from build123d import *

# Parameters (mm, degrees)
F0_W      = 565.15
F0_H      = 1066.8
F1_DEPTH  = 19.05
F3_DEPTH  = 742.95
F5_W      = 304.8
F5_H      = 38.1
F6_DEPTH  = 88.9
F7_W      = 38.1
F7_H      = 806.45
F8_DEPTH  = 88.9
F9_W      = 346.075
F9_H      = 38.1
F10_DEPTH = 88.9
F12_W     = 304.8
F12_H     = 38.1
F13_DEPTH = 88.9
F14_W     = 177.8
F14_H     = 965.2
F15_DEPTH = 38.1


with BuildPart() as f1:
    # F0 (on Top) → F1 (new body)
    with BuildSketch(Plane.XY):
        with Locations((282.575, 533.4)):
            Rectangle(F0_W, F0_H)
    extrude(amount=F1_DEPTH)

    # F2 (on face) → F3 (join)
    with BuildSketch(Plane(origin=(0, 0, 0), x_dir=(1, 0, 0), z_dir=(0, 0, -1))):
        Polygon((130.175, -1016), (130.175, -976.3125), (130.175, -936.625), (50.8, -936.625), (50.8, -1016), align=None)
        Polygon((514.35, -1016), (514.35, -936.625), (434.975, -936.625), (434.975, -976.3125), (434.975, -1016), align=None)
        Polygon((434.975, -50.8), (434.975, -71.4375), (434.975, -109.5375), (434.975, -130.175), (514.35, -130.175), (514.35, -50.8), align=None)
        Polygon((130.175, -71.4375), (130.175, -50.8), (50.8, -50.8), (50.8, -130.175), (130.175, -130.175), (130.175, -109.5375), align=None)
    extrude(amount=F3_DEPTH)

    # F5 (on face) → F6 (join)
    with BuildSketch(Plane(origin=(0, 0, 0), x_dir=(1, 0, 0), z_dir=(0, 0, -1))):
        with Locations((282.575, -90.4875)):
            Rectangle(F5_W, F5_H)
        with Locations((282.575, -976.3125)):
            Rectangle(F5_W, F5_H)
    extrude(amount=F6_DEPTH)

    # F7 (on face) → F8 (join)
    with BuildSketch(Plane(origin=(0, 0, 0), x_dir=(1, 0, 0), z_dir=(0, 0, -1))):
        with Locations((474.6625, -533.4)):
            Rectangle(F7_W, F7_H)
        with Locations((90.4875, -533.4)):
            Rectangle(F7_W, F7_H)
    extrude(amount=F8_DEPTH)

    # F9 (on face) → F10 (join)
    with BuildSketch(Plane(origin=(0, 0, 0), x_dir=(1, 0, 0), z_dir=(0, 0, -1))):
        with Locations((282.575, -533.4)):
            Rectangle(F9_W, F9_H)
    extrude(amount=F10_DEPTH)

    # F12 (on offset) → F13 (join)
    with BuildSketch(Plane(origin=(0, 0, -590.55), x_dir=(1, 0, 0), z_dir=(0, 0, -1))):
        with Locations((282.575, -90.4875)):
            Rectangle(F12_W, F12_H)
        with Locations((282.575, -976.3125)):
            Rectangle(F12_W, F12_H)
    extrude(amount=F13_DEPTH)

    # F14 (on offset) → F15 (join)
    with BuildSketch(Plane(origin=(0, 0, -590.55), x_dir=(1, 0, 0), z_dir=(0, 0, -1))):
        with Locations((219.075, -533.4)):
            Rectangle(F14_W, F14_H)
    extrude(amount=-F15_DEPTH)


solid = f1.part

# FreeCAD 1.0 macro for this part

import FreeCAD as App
import Part
import Sketcher

V = App.Vector
Q = App.Units.Quantity

doc = App.newDocument("Part")
params = doc.addObject("Spreadsheet::Sheet", "Params")
for row, (alias, value) in enumerate([
    ("sketch1_height", "42 in"),
    ("sketch1_width", "22.25 in"),
    ("pad1_length", "0.75 in"),
    ("sketch2_width", "3.125 in"),
    ("pad2_length", "29.25 in"),
    ("sketch3_width", "12 in"),
    ("sketch3_height", "1.5 in"),
    ("pad3_length", "3.5 in"),
    ("sketch4_width", "1.5 in"),
    ("sketch4_height", "31.75 in"),
    ("pad4_length", "3.5 in"),
    ("sketch5_height", "1.5 in"),
    ("sketch5_width", "13.625 in"),
    ("pad5_length", "3.5 in"),
    ("sketch6_width", "12 in"),
    ("sketch6_height", "1.5 in"),
    ("pad6_length", "3.5 in"),
    ("sketch7_width", "7 in"),
    ("sketch7_height", "38 in"),
    ("pad7_length", "1.5 in"),
], start=1):
    params.set(f"A{row}", alias)
    params.set(f"B{row}", "=" + value)
    params.setAlias(f"B{row}", alias)

body = doc.addObject("PartDesign::Body", "Body")

sketch1 = doc.addObject("Sketcher::SketchObject", "Sketch")
body.addObject(sketch1)
sketch1.AttachmentSupport = (doc.XY_Plane, [""])
sketch1.MapMode = "FlatFace"
sketch1.addGeometry([
    Part.LineSegment(V(0, 1066.8, 0), V(0, 0, 0)),
    Part.LineSegment(V(0, 0, 0), V(565.15, 0, 0)),
    Part.LineSegment(V(565.15, 0, 0), V(565.15, 1066.8, 0)),
    Part.LineSegment(V(565.15, 1066.8, 0), V(0, 1066.8, 0)),
], False)
sketch1.addConstraint([
    Sketcher.Constraint("Coincident", 0, 2, 1, 1),
    Sketcher.Constraint("Coincident", 1, 2, 2, 1),
    Sketcher.Constraint("Coincident", 2, 2, 3, 1),
    Sketcher.Constraint("Coincident", 3, 2, 0, 1),
    Sketcher.Constraint("Vertical", 0),
    Sketcher.Constraint("Horizontal", 1),
    Sketcher.Constraint("Vertical", 2),
    Sketcher.Constraint("Horizontal", 3),
    Sketcher.Constraint("Coincident", 0, 2, -1, 1),
    Sketcher.Constraint("DistanceY", 0, 2, 0, 1, Q("42 in")),
    Sketcher.Constraint("DistanceX", 1, 1, 1, 2, Q("22.25 in")),
])
sketch1.setExpression("Constraints[9]", "Params.sketch1_height")
sketch1.setExpression("Constraints[10]", "Params.sketch1_width")
pad1 = doc.addObject("PartDesign::Pad", "Pad")
body.addObject(pad1)
pad1.Profile = sketch1
pad1.setExpression("Length", "Params.pad1_length")

sketch2 = doc.addObject("Sketcher::SketchObject", "Sketch001")
body.addObject(sketch2)
sketch2.AttachmentSupport = (doc.XY_Plane, [""])
sketch2.MapMode = "FlatFace"
sketch2.addGeometry([
    Part.LineSegment(V(130.175, 1016, 0), V(130.175, 936.625, 0)),
    Part.LineSegment(V(130.175, 936.625, 0), V(50.8, 936.625, 0)),
    Part.LineSegment(V(50.8, 936.625, 0), V(50.8, 1016, 0)),
    Part.LineSegment(V(50.8, 1016, 0), V(130.175, 1016, 0)),
    Part.LineSegment(V(514.35, 1016, 0), V(514.35, 936.625, 0)),
    Part.LineSegment(V(514.35, 936.625, 0), V(434.975, 936.625, 0)),
    Part.LineSegment(V(434.975, 936.625, 0), V(434.975, 1016, 0)),
    Part.LineSegment(V(434.975, 1016, 0), V(514.35, 1016, 0)),
    Part.LineSegment(V(434.975, 50.8, 0), V(434.975, 130.175, 0)),
    Part.LineSegment(V(434.975, 130.175, 0), V(514.35, 130.175, 0)),
    Part.LineSegment(V(514.35, 130.175, 0), V(514.35, 50.8, 0)),
    Part.LineSegment(V(514.35, 50.8, 0), V(434.975, 50.8, 0)),
    Part.LineSegment(V(130.175, 50.8, 0), V(50.8, 50.8, 0)),
    Part.LineSegment(V(50.8, 50.8, 0), V(50.8, 130.175, 0)),
    Part.LineSegment(V(50.8, 130.175, 0), V(130.175, 130.175, 0)),
    Part.LineSegment(V(130.175, 130.175, 0), V(130.175, 50.8, 0)),
], False)
sketch2.addConstraint([
    Sketcher.Constraint("Coincident", 0, 2, 1, 1),
    Sketcher.Constraint("Coincident", 1, 2, 2, 1),
    Sketcher.Constraint("Coincident", 2, 2, 3, 1),
    Sketcher.Constraint("Coincident", 3, 2, 0, 1),
    Sketcher.Constraint("Coincident", 4, 2, 5, 1),
    Sketcher.Constraint("Coincident", 5, 2, 6, 1),
    Sketcher.Constraint("Coincident", 6, 2, 7, 1),
    Sketcher.Constraint("Coincident", 7, 2, 4, 1),
    Sketcher.Constraint("Coincident", 8, 2, 9, 1),
    Sketcher.Constraint("Coincident", 9, 2, 10, 1),
    Sketcher.Constraint("Coincident", 10, 2, 11, 1),
    Sketcher.Constraint("Coincident", 11, 2, 8, 1),
    Sketcher.Constraint("Coincident", 12, 2, 13, 1),
    Sketcher.Constraint("Coincident", 13, 2, 14, 1),
    Sketcher.Constraint("Coincident", 14, 2, 15, 1),
    Sketcher.Constraint("Coincident", 15, 2, 12, 1),
    Sketcher.Constraint("Vertical", 0),
    Sketcher.Constraint("Horizontal", 1),
    Sketcher.Constraint("Vertical", 2),
    Sketcher.Constraint("Horizontal", 3),
    Sketcher.Constraint("Vertical", 4),
    Sketcher.Constraint("Horizontal", 5),
    Sketcher.Constraint("Vertical", 6),
    Sketcher.Constraint("Horizontal", 7),
    Sketcher.Constraint("Vertical", 8),
    Sketcher.Constraint("Horizontal", 9),
    Sketcher.Constraint("Vertical", 10),
    Sketcher.Constraint("Horizontal", 11),
    Sketcher.Constraint("Horizontal", 12),
    Sketcher.Constraint("Vertical", 13),
    Sketcher.Constraint("Horizontal", 14),
    Sketcher.Constraint("Vertical", 15),
    Sketcher.Constraint("Horizontal", 1, 2, 4, 2),
    Sketcher.Constraint("Horizontal", 3, 2, 6, 2),
    Sketcher.Constraint("Horizontal", 11, 2, 12, 2),
    Sketcher.Constraint("Horizontal", 9, 2, 13, 2),
    Sketcher.Constraint("Vertical", 6, 2, 8, 2),
    Sketcher.Constraint("Vertical", 7, 2, 9, 2),
    Sketcher.Constraint("Vertical", 2, 2, 12, 2),
    Sketcher.Constraint("Vertical", 3, 2, 14, 2),
    Sketcher.Constraint("Equal", 3, 5),
    Sketcher.Constraint("Equal", 14, 0),
    Sketcher.Constraint("Equal", 6, 8),
    Sketcher.Constraint("DistanceX", -1, 1, 1, 2, Q("2 in")),
    Sketcher.Constraint("DistanceY", -1, 1, 2, 2, Q("40 in")),
    Sketcher.Constraint("DistanceY", -1, 1, 10, 2, Q("2 in")),
    Sketcher.Constraint("DistanceX", 0, 2, 5, 2, Q("12 in")),
    Sketcher.Constraint("DistanceX", 1, 2, 1, 1, Q("3.125 in")),
])
sketch2.setExpression("Constraints[47]", "Params.sketch2_width")
pad2 = doc.addObject("PartDesign::Pad", "Pad001")
body.addObject(pad2)
pad2.Profile = sketch2
pad2.setExpression("Length", "Params.pad2_length")
pad2.Reversed = True

sketch3 = doc.addObject("Sketcher::SketchObject", "Sketch002")
body.addObject(sketch3)
sketch3.AttachmentSupport = (doc.XY_Plane, [""])
sketch3.MapMode = "FlatFace"
sketch3.addGeometry([
    Part.LineSegment(V(130.175, 71.4375, 0), V(130.175, 109.5375, 0)),
    Part.LineSegment(V(130.175, 109.5375, 0), V(434.975, 109.5375, 0)),
    Part.LineSegment(V(434.975, 109.5375, 0), V(434.975, 71.4375, 0)),
    Part.LineSegment(V(434.975, 71.4375, 0), V(130.175, 71.4375, 0)),
    Part.LineSegment(V(130.175, 957.2625, 0), V(130.175, 995.3625, 0)),
    Part.LineSegment(V(130.175, 995.3625, 0), V(434.975, 995.3625, 0)),
    Part.LineSegment(V(434.975, 995.3625, 0), V(434.975, 957.2625, 0)),
    Part.LineSegment(V(434.975, 957.2625, 0), V(130.175, 957.2625, 0)),
], False)
sketch3.addConstraint([
    Sketcher.Constraint("Coincident", 0, 2, 1, 1),
    Sketcher.Constraint("Coincident", 1, 2, 2, 1),
    Sketcher.Constraint("Coincident", 2, 2, 3, 1),
    Sketcher.Constraint("Coincident", 3, 2, 0, 1),
    Sketcher.Constraint("Coincident", 4, 2, 5, 1),
    Sketcher.Constraint("Coincident", 5, 2, 6, 1),
    Sketcher.Constraint("Coincident", 6, 2, 7, 1),
    Sketcher.Constraint("Coincident", 7, 2, 4, 1),
    Sketcher.Constraint("Vertical", 0),
    Sketcher.Constraint("Horizontal", 1),
    Sketcher.Constraint("Vertical", 2),
    Sketcher.Constraint("Horizontal", 3),
    Sketcher.Constraint("Vertical", 4),
    Sketcher.Constraint("Horizontal", 5),
    Sketcher.Constraint("Vertical", 6),
    Sketcher.Constraint("Horizontal", 7),
    Sketcher.Constraint("Vertical", 3, 2, 4, 2),
    Sketcher.Constraint("Vertical", 2, 2, 5, 2),
    Sketcher.Constraint("Equal", 2, 4),
    Sketcher.Constraint("DistanceX", 1, 1, 1, 2, Q("12 in")),
    Sketcher.Constraint("DistanceY", 0, 1, 0, 2, Q("1.5 in")),
    Sketcher.Constraint("DistanceX", -1, 1, 0, 2, Q("5.125 in")),
    Sketcher.Constraint("DistanceY", -1, 1, 0, 2, Q("4.3125 in")),
    Sketcher.Constraint("DistanceY", -1, 1, 4, 2, Q("39.1875 in")),
])
sketch3.setExpression("Constraints[19]", "Params.sketch3_width")
sketch3.setExpression("Constraints[20]", "Params.sketch3_height")
pad3 = doc.addObject("PartDesign::Pad", "Pad002")
body.addObject(pad3)
pad3.Profile = sketch3
pad3.setExpression("Length", "Params.pad3_length")
pad3.Reversed = True

sketch4 = doc.addObject("Sketcher::SketchObject", "Sketch003")
body.addObject(sketch4)
sketch4.AttachmentSupport = (doc.XY_Plane, [""])
sketch4.MapMode = "FlatFace"
sketch4.addGeometry([
    Part.LineSegment(V(455.6125, 130.175, 0), V(455.6125, 936.625, 0)),
    Part.LineSegment(V(455.6125, 936.625, 0), V(493.7125, 936.625, 0)),
    Part.LineSegment(V(493.7125, 936.625, 0), V(493.7125, 130.175, 0)),
    Part.LineSegment(V(493.7125, 130.175, 0), V(455.6125, 130.175, 0)),
    Part.LineSegment(V(71.4375, 130.175, 0), V(71.4375, 936.625, 0)),
    Part.LineSegment(V(71.4375, 936.625, 0), V(109.5375, 936.625, 0)),
    Part.LineSegment(V(109.5375, 936.625, 0), V(109.5375, 130.175, 0)),
    Part.LineSegment(V(109.5375, 130.175, 0), V(71.4375, 130.175, 0)),
], False)
sketch4.addConstraint([
    Sketcher.Constraint("Coincident", 0, 2, 1, 1),
    Sketcher.Constraint("Coincident", 1, 2, 2, 1),
    Sketcher.Constraint("Coincident", 2, 2, 3, 1),
    Sketcher.Constraint("Coincident", 3, 2, 0, 1),
    Sketcher.Constraint("Coincident", 4, 2, 5, 1),
    Sketcher.Constraint("Coincident", 5, 2, 6, 1),
    Sketcher.Constraint("Coincident", 6, 2, 7, 1),
    Sketcher.Constraint("Coincident", 7, 2, 4, 1),
    Sketcher.Constraint("Vertical", 0),
    Sketcher.Constraint("Horizontal", 1),
    Sketcher.Constraint("Vertical", 2),
    Sketcher.Constraint("Horizontal", 3),
    Sketcher.Constraint("Vertical", 4),
    Sketcher.Constraint("Horizontal", 5),
    Sketcher.Constraint("Vertical", 6),
    Sketcher.Constraint("Horizontal", 7),
    Sketcher.Constraint("Horizontal", 1, 2, 4, 2),
    Sketcher.Constraint("Horizontal", 3, 2, 6, 2),
    Sketcher.Constraint("Equal", 3, 5),
    Sketcher.Constraint("DistanceX", 1, 1, 1, 2, Q("1.5 in")),
    Sketcher.Constraint("DistanceY", 0, 1, 0, 2, Q("31.75 in")),
    Sketcher.Constraint("DistanceX", -1, 1, 0, 2, Q("17.9375 in")),
    Sketcher.Constraint("DistanceY", -1, 1, 0, 2, Q("36.875 in")),
    Sketcher.Constraint("DistanceX", -1, 1, 4, 2, Q("2.8125 in")),
])
sketch4.setExpression("Constraints[19]", "Params.sketch4_width")
sketch4.setExpression("Constraints[20]", "Params.sketch4_height")
pad4 = doc.addObject("PartDesign::Pad", "Pad003")
body.addObject(pad4)
pad4.Profile = sketch4
pad4.setExpression("Length", "Params.pad4_length")
pad4.Reversed = True

sketch5 = doc.addObject("Sketcher::SketchObject", "Sketch004")
body.addObject(sketch5)
sketch5.AttachmentSupport = (doc.XY_Plane, [""])
sketch5.MapMode = "FlatFace"
sketch5.addGeometry([
    Part.LineSegment(V(109.5375, 514.35, 0), V(109.5375, 552.45, 0)),
    Part.LineSegment(V(109.5375, 552.45, 0), V(455.6125, 552.45, 0)),
    Part.LineSegment(V(455.6125, 552.45, 0), V(455.6125, 514.35, 0)),
    Part.LineSegment(V(455.6125, 514.35, 0), V(109.5375, 514.35, 0)),
], False)
sketch5.addConstraint([
    Sketcher.Constraint("Coincident", 0, 2, 1, 1),
    Sketcher.Constraint("Coincident", 1, 2, 2, 1),
    Sketcher.Constraint("Coincident", 2, 2, 3, 1),
    Sketcher.Constraint("Coincident", 3, 2, 0, 1),
    Sketcher.Constraint("Vertical", 0),
    Sketcher.Constraint("Horizontal", 1),
    Sketcher.Constraint("Vertical", 2),
    Sketcher.Constraint("Horizontal", 3),
    Sketcher.Constraint("DistanceY", 0, 1, 0, 2, Q("1.5 in")),
    Sketcher.Constraint("DistanceX", 1, 1, 1, 2, Q("13.625 in")),
    Sketcher.Constraint("DistanceY", -1, 1, 0, 2, Q("21.75 in")),
    Sketcher.Constraint("DistanceX", -1, 1, 0, 2, Q("4.3125 in")),
])
sketch5.setExpression("Constraints[8]", "Params.sketch5_height")
sketch5.setExpression("Constraints[9]", "Params.sketch5_width")
pad5 = doc.addObject("PartDesign::Pad", "Pad004")
body.addObject(pad5)
pad5.Profile = sketch5
pad5.setExpression("Length", "Params.pad5_length")
pad5.Reversed = True

sketch6 = doc.addObject("Sketcher::SketchObject", "Sketch005")
body.addObject(sketch6)
sketch6.AttachmentSupport = (doc.XY_Plane, [""])
sketch6.MapMode = "FlatFace"
sketch6.AttachmentOffset = App.Placement(V(0, 0, -23.25 * 25.4), App.Rotation())
sketch6.addGeometry([
    Part.LineSegment(V(130.175, 71.4375, 0), V(130.175, 109.5375, 0)),
    Part.LineSegment(V(130.175, 109.5375, 0), V(434.975, 109.5375, 0)),
    Part.LineSegment(V(434.975, 109.5375, 0), V(434.975, 71.4375, 0)),
    Part.LineSegment(V(434.975, 71.4375, 0), V(130.175, 71.4375, 0)),
    Part.LineSegment(V(130.175, 957.2625, 0), V(130.175, 995.3625, 0)),
    Part.LineSegment(V(130.175, 995.3625, 0), V(434.975, 995.3625, 0)),
    Part.LineSegment(V(434.975, 995.3625, 0), V(434.975, 957.2625, 0)),
    Part.LineSegment(V(434.975, 957.2625, 0), V(130.175, 957.2625, 0)),
], False)
sketch6.addConstraint([
    Sketcher.Constraint("Coincident", 0, 2, 1, 1),
    Sketcher.Constraint("Coincident", 1, 2, 2, 1),
    Sketcher.Constraint("Coincident", 2, 2, 3, 1),
    Sketcher.Constraint("Coincident", 3, 2, 0, 1),
    Sketcher.Constraint("Coincident", 4, 2, 5, 1),
    Sketcher.Constraint("Coincident", 5, 2, 6, 1),
    Sketcher.Constraint("Coincident", 6, 2, 7, 1),
    Sketcher.Constraint("Coincident", 7, 2, 4, 1),
    Sketcher.Constraint("Vertical", 0),
    Sketcher.Constraint("Horizontal", 1),
    Sketcher.Constraint("Vertical", 2),
    Sketcher.Constraint("Horizontal", 3),
    Sketcher.Constraint("Vertical", 4),
    Sketcher.Constraint("Horizontal", 5),
    Sketcher.Constraint("Vertical", 6),
    Sketcher.Constraint("Horizontal", 7),
    Sketcher.Constraint("Vertical", 3, 2, 4, 2),
    Sketcher.Constraint("Vertical", 2, 2, 5, 2),
    Sketcher.Constraint("Equal", 2, 4),
    Sketcher.Constraint("DistanceX", 1, 1, 1, 2, Q("12 in")),
    Sketcher.Constraint("DistanceY", 0, 1, 0, 2, Q("1.5 in")),
    Sketcher.Constraint("DistanceX", -1, 1, 0, 2, Q("5.125 in")),
    Sketcher.Constraint("DistanceY", -1, 1, 0, 2, Q("4.3125 in")),
    Sketcher.Constraint("DistanceY", -1, 1, 4, 2, Q("39.1875 in")),
])
sketch6.setExpression("Constraints[19]", "Params.sketch6_width")
sketch6.setExpression("Constraints[20]", "Params.sketch6_height")
pad6 = doc.addObject("PartDesign::Pad", "Pad005")
body.addObject(pad6)
pad6.Profile = sketch6
pad6.setExpression("Length", "Params.pad6_length")
pad6.Reversed = True

sketch7 = doc.addObject("Sketcher::SketchObject", "Sketch006")
body.addObject(sketch7)
sketch7.AttachmentSupport = (doc.XY_Plane, [""])
sketch7.MapMode = "FlatFace"
sketch7.AttachmentOffset = App.Placement(V(0, 0, -23.25 * 25.4), App.Rotation())
sketch7.addGeometry([
    Part.LineSegment(V(130.175, 50.8, 0), V(130.175, 1016, 0)),
    Part.LineSegment(V(130.175, 1016, 0), V(307.975, 1016, 0)),
    Part.LineSegment(V(307.975, 1016, 0), V(307.975, 50.8, 0)),
    Part.LineSegment(V(307.975, 50.8, 0), V(130.175, 50.8, 0)),
], False)
sketch7.addConstraint([
    Sketcher.Constraint("Coincident", 0, 2, 1, 1),
    Sketcher.Constraint("Coincident", 1, 2, 2, 1),
    Sketcher.Constraint("Coincident", 2, 2, 3, 1),
    Sketcher.Constraint("Coincident", 3, 2, 0, 1),
    Sketcher.Constraint("Vertical", 0),
    Sketcher.Constraint("Horizontal", 1),
    Sketcher.Constraint("Vertical", 2),
    Sketcher.Constraint("Horizontal", 3),
    Sketcher.Constraint("DistanceX", 1, 1, 1, 2, Q("7 in")),
    Sketcher.Constraint("DistanceY", 0, 1, 0, 2, Q("38 in")),
    Sketcher.Constraint("DistanceY", -1, 1, 0, 2, Q("40 in")),
    Sketcher.Constraint("DistanceX", -1, 1, 0, 2, Q("5.125 in")),
])
sketch7.setExpression("Constraints[8]", "Params.sketch7_width")
sketch7.setExpression("Constraints[9]", "Params.sketch7_height")
pad7 = doc.addObject("PartDesign::Pad", "Pad006")
body.addObject(pad7)
pad7.Profile = sketch7
pad7.setExpression("Length", "Params.pad7_length")

doc.recompute()
